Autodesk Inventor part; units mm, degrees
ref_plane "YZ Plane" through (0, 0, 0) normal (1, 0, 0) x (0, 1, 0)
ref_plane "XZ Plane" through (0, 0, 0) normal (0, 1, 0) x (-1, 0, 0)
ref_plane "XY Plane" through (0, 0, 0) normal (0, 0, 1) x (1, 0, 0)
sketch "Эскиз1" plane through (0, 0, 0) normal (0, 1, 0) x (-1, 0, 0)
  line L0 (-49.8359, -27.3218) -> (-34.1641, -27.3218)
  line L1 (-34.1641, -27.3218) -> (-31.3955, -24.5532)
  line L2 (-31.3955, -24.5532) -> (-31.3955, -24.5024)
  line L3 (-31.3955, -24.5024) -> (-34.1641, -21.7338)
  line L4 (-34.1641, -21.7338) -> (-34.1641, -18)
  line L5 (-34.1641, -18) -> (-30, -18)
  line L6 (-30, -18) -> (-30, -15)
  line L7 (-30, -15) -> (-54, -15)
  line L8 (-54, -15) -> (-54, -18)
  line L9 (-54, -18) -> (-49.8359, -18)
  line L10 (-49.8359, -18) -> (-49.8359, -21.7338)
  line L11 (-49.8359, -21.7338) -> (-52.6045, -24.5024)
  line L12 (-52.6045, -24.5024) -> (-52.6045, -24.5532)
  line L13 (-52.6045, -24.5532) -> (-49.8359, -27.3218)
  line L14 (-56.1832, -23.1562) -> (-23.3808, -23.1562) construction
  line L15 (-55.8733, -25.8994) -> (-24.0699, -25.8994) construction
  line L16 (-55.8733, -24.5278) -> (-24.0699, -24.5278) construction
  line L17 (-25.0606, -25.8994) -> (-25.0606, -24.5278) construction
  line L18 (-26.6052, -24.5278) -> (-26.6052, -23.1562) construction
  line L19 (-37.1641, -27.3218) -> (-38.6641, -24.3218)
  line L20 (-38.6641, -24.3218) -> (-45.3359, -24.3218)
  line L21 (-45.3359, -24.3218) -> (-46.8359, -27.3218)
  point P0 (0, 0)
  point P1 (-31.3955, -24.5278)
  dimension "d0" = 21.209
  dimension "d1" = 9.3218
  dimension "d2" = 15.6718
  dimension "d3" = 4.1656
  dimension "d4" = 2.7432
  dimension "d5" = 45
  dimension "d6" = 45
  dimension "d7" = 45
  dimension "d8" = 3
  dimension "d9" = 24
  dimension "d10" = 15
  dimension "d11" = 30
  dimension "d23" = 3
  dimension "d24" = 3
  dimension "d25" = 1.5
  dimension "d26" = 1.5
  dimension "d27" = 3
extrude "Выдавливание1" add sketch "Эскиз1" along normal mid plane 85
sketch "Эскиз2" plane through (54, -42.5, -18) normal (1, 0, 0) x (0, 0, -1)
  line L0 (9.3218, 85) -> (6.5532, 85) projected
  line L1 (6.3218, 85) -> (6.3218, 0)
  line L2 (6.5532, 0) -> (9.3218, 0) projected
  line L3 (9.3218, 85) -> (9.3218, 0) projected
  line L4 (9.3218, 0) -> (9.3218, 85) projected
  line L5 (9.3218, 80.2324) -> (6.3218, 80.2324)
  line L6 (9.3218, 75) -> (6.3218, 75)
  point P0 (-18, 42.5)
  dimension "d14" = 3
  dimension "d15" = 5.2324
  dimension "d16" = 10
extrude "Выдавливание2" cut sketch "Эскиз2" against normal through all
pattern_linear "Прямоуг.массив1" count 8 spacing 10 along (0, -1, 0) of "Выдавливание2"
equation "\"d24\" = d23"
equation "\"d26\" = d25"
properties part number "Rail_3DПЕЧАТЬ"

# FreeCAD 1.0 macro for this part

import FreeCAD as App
import Part
import Sketcher
Q = App.Units.Quantity


def add_polygon(sketch, points):
    """Adds a closed chain of lines whose ends are joined by coincident constraints."""
    first, n = sketch.GeometryCount, len(points)
    for a, b in zip(points, points[1:] + points[:1]):
        sketch.addGeometry(Part.LineSegment(App.Vector(*a, 0), App.Vector(*b, 0)), False)
    for i in range(n):
        sketch.addConstraint(Sketcher.Constraint("Coincident", first + i, 2, first + (i + 1) % n, 1))

doc = App.newDocument("Part")
body = doc.addObject("PartDesign::Body", "Body")

sketch1 = body.newObject("Sketcher::SketchObject", "Sketch")
sketch1.AttachmentSupport = (doc.getObject("XZ_Plane"), [""])
sketch1.MapMode = "FlatFace"
add_polygon(sketch1, [(52.6045, -24.5532), (49.8359, -27.3218), (34.1641, -27.3218), (31.3955, -24.5532), (31.3955, -24.5024), (34.1641, -21.7338), (34.1641, -18), (30, -18), (30, -15), (54, -15), (54, -18), (49.8359, -18), (49.8359, -21.7338), (52.6045, -24.5024)])
sketch1.addConstraint([
    Sketcher.Constraint("Horizontal", 1),
    Sketcher.Constraint("Vertical", 3),
    Sketcher.Constraint("Vertical", 5),
    Sketcher.Constraint("Horizontal", 6),
    Sketcher.Constraint("Vertical", 7),
    Sketcher.Constraint("Horizontal", 8),
    Sketcher.Constraint("Vertical", 9),
    Sketcher.Constraint("Horizontal", 10),
    Sketcher.Constraint("Vertical", 11),
    Sketcher.Constraint("Vertical", 13),
    Sketcher.Constraint("Perpendicular", 0, 2),
    Sketcher.Constraint("Perpendicular", 2, 4),
    Sketcher.Constraint("Perpendicular", 4, 12),
    Sketcher.Constraint("Horizontal", 6, 2, 9, 2),
    Sketcher.Constraint("Horizontal", 4, 2, 11, 2),
    Sketcher.Constraint("Horizontal", 3, 2, 12, 2),
    Sketcher.Constraint("Horizontal", 2, 2, 13, 2),
    Sketcher.Constraint("Vertical", 1, 2, 4, 2),
    Sketcher.Constraint("Vertical", 0, 2, 10, 2),
    Sketcher.Constraint("Equal", 6, 10),
    Sketcher.Constraint("DistanceX", 1, 2, 1, 1, Q("0.617 in")),
    Sketcher.Constraint("DistanceY", 7, 1, 7, 2, Q("0.1181 in")),
    Sketcher.Constraint("DistanceY", 1, 2, 5, 2, Q("0.367 in")),
    Sketcher.Constraint("DistanceX", 8, 1, 8, 2, 24.0),
    Sketcher.Constraint("DistanceX", -1, 1, 6, 2, Q("1.1811 in")),
    Sketcher.Constraint("DistanceY", 3, 1, 3, 2, Q("0.002 in")),
    Sketcher.Constraint("DistanceY", 5, 1, 5, 2, Q("0.147 in")),
    Sketcher.Constraint("DistanceY", 7, 2, -1, 1, 15.0),
])
pad1 = body.newObject("PartDesign::Pad", "Pad")
pad1.Profile = sketch1
pad1.Length = 85
pad1.Midplane = True

sketch2 = body.newObject("Sketcher::SketchObject", "Sketch001")
sketch2.AttachmentSupport = (doc.getObject("YZ_Plane"), [""])
sketch2.MapMode = "FlatFace"
sketch2.AttachmentOffset = App.Placement(App.Vector(0, 0, 54), App.Rotation())
add_polygon(sketch2, [(37.7324, -27.3218), (37.7324, -24.3218), (32.5, -24.3218), (32.5, -27.3218)])
sketch2.addConstraint([
    Sketcher.Constraint("Vertical", 0),
    Sketcher.Constraint("Horizontal", 1),
    Sketcher.Constraint("Vertical", 2),
    Sketcher.Constraint("Horizontal", 3),
    Sketcher.Constraint("DistanceX", 1, 2, 1, 1, Q("0.206 in")),
    Sketcher.Constraint("DistanceY", 0, 1, 0, 2, Q("0.1181 in")),
    Sketcher.Constraint("DistanceX", -1, 1, 0, 2, 37.7324),
    Sketcher.Constraint("DistanceY", 0, 2, -1, 1, 24.3218),
])
pocket1 = body.newObject("PartDesign::Pocket", "Pocket")
pocket1.Profile = sketch2
pocket1.Type = "ThroughAll"
doc.recompute()

linearpattern = body.newObject("PartDesign::LinearPattern", "LinearPattern")
linearpattern.Originals = [pocket1]
linearpattern.Direction = (doc.getObject("Y_Axis"), [""])
linearpattern.Mode = "offset"
linearpattern.Offset = Q("0.3937008 in")
linearpattern.Occurrences = 8
linearpattern.Reversed = True
body.Tip = linearpattern

doc.recompute()
